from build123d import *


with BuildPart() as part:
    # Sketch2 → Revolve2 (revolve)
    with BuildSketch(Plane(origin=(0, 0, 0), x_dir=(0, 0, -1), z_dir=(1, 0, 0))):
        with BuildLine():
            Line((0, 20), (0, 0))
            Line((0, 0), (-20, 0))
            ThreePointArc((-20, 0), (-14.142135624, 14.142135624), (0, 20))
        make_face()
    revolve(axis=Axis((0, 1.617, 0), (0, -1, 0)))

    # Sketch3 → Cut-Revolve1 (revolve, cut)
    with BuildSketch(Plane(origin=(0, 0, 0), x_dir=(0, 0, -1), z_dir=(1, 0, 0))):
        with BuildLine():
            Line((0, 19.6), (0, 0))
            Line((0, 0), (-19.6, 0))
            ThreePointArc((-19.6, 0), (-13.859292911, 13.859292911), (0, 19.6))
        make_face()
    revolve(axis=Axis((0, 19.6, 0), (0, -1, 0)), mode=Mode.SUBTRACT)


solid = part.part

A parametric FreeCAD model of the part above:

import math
import FreeCAD as App
import Part
import Sketcher

doc = App.newDocument("Part")
params = doc.addObject("Spreadsheet::Sheet", "Params")
for row, (alias, value) in enumerate([
    ("sketch1_radius", "20 mm"),
    ("revolution_angle", "360 deg"),
    ("sketch2_radius", "19.6 mm"),
    ("groove_angle", "360 deg"),
], start=1):
    params.set(f"A{row}", alias)
    params.set(f"B{row}", "=" + value)
    params.setAlias(f"B{row}", alias)

body = doc.addObject("PartDesign::Body", "Body")

# Sketch on YZ plane
sketch1 = body.newObject("Sketcher::SketchObject", "Sketch")
sketch1.AttachmentSupport = (doc.getObject("YZ_Plane"), [""])
sketch1.MapMode = "FlatFace"
sketch1.addGeometry([
    Part.LineSegment(App.Vector(0, 0, 0), App.Vector(20, 0, 0)),
    Part.ArcOfCircle(Part.Circle(App.Vector(0, 0, 0), App.Vector(0, 0, 1), 20), math.radians(0), math.radians(90)),
    Part.LineSegment(App.Vector(0, 20, 0), App.Vector(0, 0, 0)),
], False)
sketch1.addConstraint([
    Sketcher.Constraint("Coincident", 0, 2, 1, 1),
    Sketcher.Constraint("Coincident", 1, 2, 2, 1),
    Sketcher.Constraint("Coincident", 2, 2, 0, 1),
    Sketcher.Constraint("Horizontal", 0),
    Sketcher.Constraint("Vertical", 2),
    Sketcher.Constraint("Coincident", 1, 3, -1, 1),
    Sketcher.Constraint("Coincident", 2, 2, -1, 1),
    Sketcher.Constraint("Radius", 1, 20.0),
])
sketch1.setExpression("Constraints[7]", "Params.sketch1_radius")
revolution = body.newObject("PartDesign::Revolution", "Revolution")
revolution.Profile = sketch1
revolution.ReferenceAxis = (sketch1, ["H_Axis"])
revolution.setExpression("Angle", "Params.revolution_angle")

# Sketch on YZ plane
sketch2 = body.newObject("Sketcher::SketchObject", "Sketch001")
sketch2.AttachmentSupport = (doc.getObject("YZ_Plane"), [""])
sketch2.MapMode = "FlatFace"
sketch2.addGeometry([
    Part.LineSegment(App.Vector(0, 0, 0), App.Vector(19.6, 0, 0)),
    Part.ArcOfCircle(Part.Circle(App.Vector(0, 0, 0), App.Vector(0, 0, 1), 19.6), math.radians(0), math.radians(90)),
    Part.LineSegment(App.Vector(0, 19.6, 0), App.Vector(0, 0, 0)),
], False)
sketch2.addConstraint([
    Sketcher.Constraint("Coincident", 0, 2, 1, 1),
    Sketcher.Constraint("Coincident", 1, 2, 2, 1),
    Sketcher.Constraint("Coincident", 2, 2, 0, 1),
    Sketcher.Constraint("Horizontal", 0),
    Sketcher.Constraint("Vertical", 2),
    Sketcher.Constraint("Coincident", 1, 3, -1, 1),
    Sketcher.Constraint("Coincident", 2, 2, -1, 1),
    Sketcher.Constraint("Radius", 1, 19.6),
])
sketch2.setExpression("Constraints[7]", "Params.sketch2_radius")
groove = body.newObject("PartDesign::Groove", "Groove")
groove.Profile = sketch2
groove.ReferenceAxis = (sketch2, ["H_Axis"])
groove.setExpression("Angle", "Params.groove_angle")

doc.recompute()
